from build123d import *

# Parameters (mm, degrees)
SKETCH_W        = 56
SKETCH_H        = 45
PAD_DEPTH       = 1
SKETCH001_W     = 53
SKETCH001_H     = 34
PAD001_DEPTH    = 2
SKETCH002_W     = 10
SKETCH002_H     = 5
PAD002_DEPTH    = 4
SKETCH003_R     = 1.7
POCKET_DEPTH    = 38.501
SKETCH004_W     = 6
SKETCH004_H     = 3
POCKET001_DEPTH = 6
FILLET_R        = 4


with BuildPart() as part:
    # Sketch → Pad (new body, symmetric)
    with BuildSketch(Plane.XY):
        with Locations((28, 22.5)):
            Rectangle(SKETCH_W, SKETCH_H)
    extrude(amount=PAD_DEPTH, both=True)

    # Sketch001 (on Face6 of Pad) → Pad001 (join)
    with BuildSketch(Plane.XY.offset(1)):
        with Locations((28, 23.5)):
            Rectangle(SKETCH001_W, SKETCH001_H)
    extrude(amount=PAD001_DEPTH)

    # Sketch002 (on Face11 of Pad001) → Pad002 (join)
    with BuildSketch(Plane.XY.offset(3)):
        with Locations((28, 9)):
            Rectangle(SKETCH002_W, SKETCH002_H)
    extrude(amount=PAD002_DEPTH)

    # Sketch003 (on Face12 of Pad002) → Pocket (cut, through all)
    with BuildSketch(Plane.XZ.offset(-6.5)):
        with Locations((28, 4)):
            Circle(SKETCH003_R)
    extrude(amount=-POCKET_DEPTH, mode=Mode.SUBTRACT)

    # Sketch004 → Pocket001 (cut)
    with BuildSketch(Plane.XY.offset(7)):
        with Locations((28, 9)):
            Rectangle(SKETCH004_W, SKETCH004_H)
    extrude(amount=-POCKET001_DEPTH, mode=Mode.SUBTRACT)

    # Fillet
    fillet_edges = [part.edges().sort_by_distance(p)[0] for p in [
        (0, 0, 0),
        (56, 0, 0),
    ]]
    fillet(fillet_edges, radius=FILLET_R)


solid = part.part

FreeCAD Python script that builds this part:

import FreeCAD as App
import Part
import Sketcher


def edges_at(feature, points):
    """Names of the edges that pass closest to the given points."""
    edges = feature.Shape.Edges
    near = lambda p: min(range(len(edges)), key=lambda i: edges[i].distToShape(Part.Vertex(*p))[0])
    return sorted({f"Edge{near(p) + 1}" for p in points})

doc = App.newDocument("Part")
body = doc.addObject("PartDesign::Body", "Body")

sketch1 = body.newObject("Sketcher::SketchObject", "Sketch")
sketch1.AttachmentSupport = (doc.getObject("XY_Plane"), [""])
sketch1.MapMode = "FlatFace"
sketch1.addGeometry([
    Part.LineSegment(App.Vector(0, 45, 0), App.Vector(0, 0, 0)),
    Part.LineSegment(App.Vector(0, 0, 0), App.Vector(56, 0, 0)),
    Part.LineSegment(App.Vector(56, 0, 0), App.Vector(56, 45, 0)),
    Part.LineSegment(App.Vector(56, 45, 0), App.Vector(0, 45, 0)),
], False)
sketch1.addConstraint([
    Sketcher.Constraint("Coincident", 0, 2, 1, 1),
    Sketcher.Constraint("Coincident", 1, 2, 2, 1),
    Sketcher.Constraint("Coincident", 2, 2, 3, 1),
    Sketcher.Constraint("Coincident", 3, 2, 0, 1),
    Sketcher.Constraint("Vertical", 0),
    Sketcher.Constraint("Horizontal", 1),
    Sketcher.Constraint("Vertical", 2),
    Sketcher.Constraint("Horizontal", 3),
    Sketcher.Constraint("Coincident", 0, 2, -1, 1),
    Sketcher.Constraint("DistanceX", 1, 1, 1, 2, 56.0),
    Sketcher.Constraint("DistanceY", 0, 2, 0, 1, 45.0),
])
pad1 = body.newObject("PartDesign::Pad", "Pad")
pad1.Profile = sketch1
pad1.Length = 2
pad1.Midplane = True

sketch2 = body.newObject("Sketcher::SketchObject", "Sketch001")
sketch2.AttachmentSupport = (doc.getObject("XY_Plane"), [""])
sketch2.MapMode = "FlatFace"
sketch2.AttachmentOffset = App.Placement(App.Vector(0, 0, 1), App.Rotation())
sketch2.addGeometry([
    Part.LineSegment(App.Vector(2, 40, 0), App.Vector(2, 6, 0)),
    Part.LineSegment(App.Vector(2, 6, 0), App.Vector(54, 6, 0)),
    Part.LineSegment(App.Vector(54, 6, 0), App.Vector(54, 40, 0)),
    Part.LineSegment(App.Vector(54, 40, 0), App.Vector(2, 40, 0)),
], False)
sketch2.addConstraint([
    Sketcher.Constraint("Coincident", 0, 2, 1, 1),
    Sketcher.Constraint("Coincident", 1, 2, 2, 1),
    Sketcher.Constraint("Coincident", 2, 2, 3, 1),
    Sketcher.Constraint("Coincident", 3, 2, 0, 1),
    Sketcher.Constraint("Vertical", 0),
    Sketcher.Constraint("Horizontal", 1),
    Sketcher.Constraint("Vertical", 2),
    Sketcher.Constraint("Horizontal", 3),
    Sketcher.Constraint("DistanceX", 1, 1, 1, 2, 53.0),
    Sketcher.Constraint("DistanceY", 0, 2, 0, 1, 34.0),
    Sketcher.Constraint("DistanceX", -1, 1, 0, 2, 1.5),
    Sketcher.Constraint("DistanceY", -1, 1, 0, 2, 6.5),
])
pad2 = body.newObject("PartDesign::Pad", "Pad001")
pad2.Profile = sketch2
pad2.Length = 2

sketch3 = body.newObject("Sketcher::SketchObject", "Sketch002")
sketch3.AttachmentSupport = (doc.getObject("XY_Plane"), [""])
sketch3.MapMode = "FlatFace"
sketch3.AttachmentOffset = App.Placement(App.Vector(0, 0, 3), App.Rotation())
sketch3.addGeometry([
    Part.LineSegment(App.Vector(23, 12, 0), App.Vector(23, 6, 0)),
    Part.LineSegment(App.Vector(23, 6, 0), App.Vector(33, 6, 0)),
    Part.LineSegment(App.Vector(33, 6, 0), App.Vector(33, 12, 0)),
    Part.LineSegment(App.Vector(33, 12, 0), App.Vector(23, 12, 0)),
], False)
sketch3.addConstraint([
    Sketcher.Constraint("Coincident", 0, 2, 1, 1),
    Sketcher.Constraint("Coincident", 1, 2, 2, 1),
    Sketcher.Constraint("Coincident", 2, 2, 3, 1),
    Sketcher.Constraint("Coincident", 3, 2, 0, 1),
    Sketcher.Constraint("Vertical", 0),
    Sketcher.Constraint("Horizontal", 1),
    Sketcher.Constraint("Vertical", 2),
    Sketcher.Constraint("Horizontal", 3),
    Sketcher.Constraint("DistanceX", 1, 1, 1, 2, 10.0),
    Sketcher.Constraint("DistanceY", 0, 2, 0, 1, 5.0),
    Sketcher.Constraint("DistanceX", -1, 1, 0, 2, 23.0),
    Sketcher.Constraint("DistanceY", -1, 1, 0, 2, 6.5),
])
pad3 = body.newObject("PartDesign::Pad", "Pad002")
pad3.Profile = sketch3
pad3.Length = 4

sketch4 = body.newObject("Sketcher::SketchObject", "Sketch003")
sketch4.AttachmentSupport = (doc.getObject("XZ_Plane"), [""])
sketch4.MapMode = "FlatFace"
sketch4.AttachmentOffset = App.Placement(App.Vector(0, 0, -6.5), App.Rotation())
sketch4.addGeometry(Part.Circle(App.Vector(28, 4, 0), App.Vector(0, 0, 1), 1.7), False)
sketch4.addConstraint([
    Sketcher.Constraint("Diameter", 0, 3.4),
    Sketcher.Constraint("DistanceX", -1, 1, 0, 3, 28.0),
    Sketcher.Constraint("DistanceY", -1, 1, 0, 3, 4.0),
])
pocket1 = body.newObject("PartDesign::Pocket", "Pocket")
pocket1.Profile = sketch4
pocket1.Type = "ThroughAll"

sketch5 = body.newObject("Sketcher::SketchObject", "Sketch004")
sketch5.AttachmentSupport = (doc.getObject("XY_Plane"), [""])
sketch5.MapMode = "FlatFace"
sketch5.AttachmentOffset = App.Placement(App.Vector(0, 0, 7), App.Rotation())
sketch5.addGeometry([
    Part.LineSegment(App.Vector(25, 10.5, 0), App.Vector(25, 7.5, 0)),
    Part.LineSegment(App.Vector(25, 7.5, 0), App.Vector(31, 7.5, 0)),
    Part.LineSegment(App.Vector(31, 7.5, 0), App.Vector(31, 10.5, 0)),
    Part.LineSegment(App.Vector(31, 10.5, 0), App.Vector(25, 10.5, 0)),
], False)
sketch5.addConstraint([
    Sketcher.Constraint("Coincident", 0, 2, 1, 1),
    Sketcher.Constraint("Coincident", 1, 2, 2, 1),
    Sketcher.Constraint("Coincident", 2, 2, 3, 1),
    Sketcher.Constraint("Coincident", 3, 2, 0, 1),
    Sketcher.Constraint("Vertical", 0),
    Sketcher.Constraint("Horizontal", 1),
    Sketcher.Constraint("Vertical", 2),
    Sketcher.Constraint("Horizontal", 3),
    Sketcher.Constraint("DistanceX", 1, 1, 1, 2, 6.0),
    Sketcher.Constraint("DistanceY", 0, 2, 0, 1, 3.0),
    Sketcher.Constraint("DistanceX", -1, 1, 0, 2, 25.0),
    Sketcher.Constraint("DistanceY", -1, 1, 0, 2, 7.5),
])
pocket2 = body.newObject("PartDesign::Pocket", "Pocket001")
pocket2.Profile = sketch5
pocket2.Length = 6
doc.recompute()

fillet = body.newObject("PartDesign::Fillet", "Fillet")
fillet.Base = (pocket2, edges_at(pocket2, [(0, 0, 0), (56, 0, 0)]))
fillet.Radius = 4

doc.recompute()
